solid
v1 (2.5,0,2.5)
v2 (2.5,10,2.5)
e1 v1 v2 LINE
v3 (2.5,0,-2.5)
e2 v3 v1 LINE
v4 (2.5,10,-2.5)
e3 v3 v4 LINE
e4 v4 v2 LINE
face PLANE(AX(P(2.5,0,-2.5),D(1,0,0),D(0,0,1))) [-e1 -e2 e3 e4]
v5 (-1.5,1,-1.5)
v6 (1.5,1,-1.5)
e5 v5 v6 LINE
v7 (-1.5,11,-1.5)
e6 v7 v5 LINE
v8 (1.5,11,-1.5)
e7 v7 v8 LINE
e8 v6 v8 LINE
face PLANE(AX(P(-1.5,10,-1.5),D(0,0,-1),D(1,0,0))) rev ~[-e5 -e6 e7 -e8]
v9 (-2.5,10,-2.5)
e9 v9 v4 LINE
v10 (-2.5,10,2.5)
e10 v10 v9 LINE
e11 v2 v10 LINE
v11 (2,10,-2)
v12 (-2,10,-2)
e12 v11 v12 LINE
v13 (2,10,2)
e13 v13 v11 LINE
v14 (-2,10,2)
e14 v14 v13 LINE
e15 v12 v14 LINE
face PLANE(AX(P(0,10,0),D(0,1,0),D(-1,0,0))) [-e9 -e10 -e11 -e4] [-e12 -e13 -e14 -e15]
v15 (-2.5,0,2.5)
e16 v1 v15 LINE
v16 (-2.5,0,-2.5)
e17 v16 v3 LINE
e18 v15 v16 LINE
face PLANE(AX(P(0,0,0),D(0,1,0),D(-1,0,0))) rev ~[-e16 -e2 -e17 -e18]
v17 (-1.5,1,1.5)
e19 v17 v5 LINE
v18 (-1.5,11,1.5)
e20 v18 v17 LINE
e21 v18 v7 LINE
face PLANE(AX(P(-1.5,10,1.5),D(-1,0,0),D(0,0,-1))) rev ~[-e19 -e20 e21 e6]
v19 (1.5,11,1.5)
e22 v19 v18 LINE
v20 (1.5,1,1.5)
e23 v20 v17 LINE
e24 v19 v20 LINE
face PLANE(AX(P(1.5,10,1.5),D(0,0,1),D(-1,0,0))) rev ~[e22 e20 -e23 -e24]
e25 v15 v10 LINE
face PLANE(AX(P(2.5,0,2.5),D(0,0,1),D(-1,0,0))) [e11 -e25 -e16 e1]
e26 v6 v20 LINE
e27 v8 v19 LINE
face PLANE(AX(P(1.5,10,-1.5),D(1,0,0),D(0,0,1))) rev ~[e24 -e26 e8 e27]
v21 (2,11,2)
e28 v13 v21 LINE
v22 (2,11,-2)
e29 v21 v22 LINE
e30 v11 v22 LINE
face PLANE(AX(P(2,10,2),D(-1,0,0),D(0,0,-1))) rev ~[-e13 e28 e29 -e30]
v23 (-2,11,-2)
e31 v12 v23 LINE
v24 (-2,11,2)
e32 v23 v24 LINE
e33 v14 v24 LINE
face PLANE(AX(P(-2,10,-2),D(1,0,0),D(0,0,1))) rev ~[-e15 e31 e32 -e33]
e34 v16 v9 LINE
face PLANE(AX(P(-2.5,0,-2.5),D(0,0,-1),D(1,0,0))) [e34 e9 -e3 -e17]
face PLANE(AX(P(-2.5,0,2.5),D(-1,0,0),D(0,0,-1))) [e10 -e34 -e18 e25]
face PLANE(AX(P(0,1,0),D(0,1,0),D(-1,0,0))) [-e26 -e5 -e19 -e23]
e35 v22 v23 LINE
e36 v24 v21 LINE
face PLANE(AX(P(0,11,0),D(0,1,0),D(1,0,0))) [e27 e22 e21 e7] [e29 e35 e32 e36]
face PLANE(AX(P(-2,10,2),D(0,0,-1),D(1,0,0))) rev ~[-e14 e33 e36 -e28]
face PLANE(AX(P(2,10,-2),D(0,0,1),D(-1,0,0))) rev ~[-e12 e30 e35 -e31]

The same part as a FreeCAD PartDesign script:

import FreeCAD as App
import Part
import Sketcher
from FreeCAD import Vector
Q = App.Units.Quantity


def faces_at(feature, points):
    """Names of the faces that lie closest to the given points."""
    faces = feature.Shape.Faces
    near = lambda p: min(range(len(faces)), key=lambda i: faces[i].distToShape(Part.Vertex(*p))[0])
    return sorted({f"Face{near(p) + 1}" for p in points})

doc = App.newDocument("Part")
body = doc.addObject("PartDesign::Body", "Body")

# Sketch on XZ plane
sketch1 = body.newObject("Sketcher::SketchObject", "Sketch")
sketch1.AttachmentSupport = (doc.getObject("XZ_Plane"), [""])
sketch1.MapMode = "FlatFace"
sketch1.addGeometry([
    Part.LineSegment(Vector(-2.5, 2.5, 0), Vector(2.5, 2.5, 0)),
    Part.LineSegment(Vector(2.5, 2.5, 0), Vector(2.5, -2.5, 0)),
    Part.LineSegment(Vector(2.5, -2.5, 0), Vector(-2.5, -2.5, 0)),
    Part.LineSegment(Vector(-2.5, -2.5, 0), Vector(-2.5, 2.5, 0)),
], False)
sketch1.addConstraint([
    Sketcher.Constraint("Coincident", 0, 2, 1, 1),
    Sketcher.Constraint("Coincident", 1, 2, 2, 1),
    Sketcher.Constraint("Coincident", 2, 2, 3, 1),
    Sketcher.Constraint("Coincident", 3, 2, 0, 1),
    Sketcher.Constraint("Horizontal", 0),
    Sketcher.Constraint("Vertical", 1),
    Sketcher.Constraint("Horizontal", 2),
    Sketcher.Constraint("Vertical", 3),
    Sketcher.Constraint("Symmetric", 0, 2, 2, 2, -1, 1),
    Sketcher.Constraint("Equal", 2, 1),
    Sketcher.Constraint("DistanceX", 0, 1, 0, 2, Q("5 mm")),
])
pad1 = body.newObject("PartDesign::Pad", "Pad")
pad1.Profile = sketch1
pad1.Length = 10
pad1.Reversed = True
doc.recompute()

thickness = body.newObject("PartDesign::Thickness", "Thickness")
thickness.Base = (pad1, faces_at(pad1, [(-0.833, 10, -0.833)]))
thickness.Value = 1
thickness.Reversed = True
thickness.Join = "Intersection"

# Sketch on XZ plane
sketch2 = body.newObject("Sketcher::SketchObject", "Sketch001")
sketch2.AttachmentSupport = (doc.getObject("XZ_Plane"), [""])
sketch2.MapMode = "FlatFace"
sketch2.AttachmentOffset = App.Placement(Vector(0, 0, -10), App.Rotation())
sketch2.addGeometry([
    Part.LineSegment(Vector(2, -2, 0), Vector(-2, -2, 0)),  # 0
    Part.LineSegment(Vector(-2, -2, 0), Vector(-2, 2, 0)),  # 1
    Part.LineSegment(Vector(-2, 2, 0), Vector(2, 2, 0)),  # 2
    Part.LineSegment(Vector(2, 2, 0), Vector(2, -2, 0)),  # 3
    Part.LineSegment(Vector(-1.5, -1.5, 0), Vector(1.5, -1.5, 0)),  # 4
    Part.LineSegment(Vector(1.5, -1.5, 0), Vector(1.5, 1.5, 0)),  # 5
    Part.LineSegment(Vector(1.5, 1.5, 0), Vector(-1.5, 1.5, 0)),  # 6
    Part.LineSegment(Vector(-1.5, 1.5, 0), Vector(-1.5, -1.5, 0)),  # 7
], False)
sketch2.addConstraint([
    Sketcher.Constraint("Coincident", 0, 2, 1, 1),
    Sketcher.Constraint("Coincident", 1, 2, 2, 1),
    Sketcher.Constraint("Coincident", 2, 2, 3, 1),
    Sketcher.Constraint("Coincident", 3, 2, 0, 1),
    Sketcher.Constraint("Coincident", 4, 2, 5, 1),
    Sketcher.Constraint("Coincident", 5, 2, 6, 1),
    Sketcher.Constraint("Coincident", 6, 2, 7, 1),
    Sketcher.Constraint("Coincident", 7, 2, 4, 1),
    Sketcher.Constraint("Horizontal", 0),
    Sketcher.Constraint("Vertical", 1),
    Sketcher.Constraint("Horizontal", 2),
    Sketcher.Constraint("Vertical", 3),
    Sketcher.Constraint("Horizontal", 4),
    Sketcher.Constraint("Vertical", 5),
    Sketcher.Constraint("Horizontal", 6),
    Sketcher.Constraint("Vertical", 7),
    Sketcher.Constraint("Symmetric", 0, 2, 2, 2, -1, 1),
    Sketcher.Constraint("Symmetric", 4, 2, 6, 2, -1, 1),
    Sketcher.Constraint("Equal", 2, 1),
    Sketcher.Constraint("Equal", 6, 5),
    Sketcher.Constraint("DistanceX", 4, 2, 3, 2, Q("0.5 mm")),
    Sketcher.Constraint("DistanceX", 0, 2, 0, 1, Q("4 mm")),
])
pad2 = body.newObject("PartDesign::Pad", "Pad001")
pad2.Profile = sketch2
pad2.Length = 1
pad2.Reversed = True

doc.recompute()
